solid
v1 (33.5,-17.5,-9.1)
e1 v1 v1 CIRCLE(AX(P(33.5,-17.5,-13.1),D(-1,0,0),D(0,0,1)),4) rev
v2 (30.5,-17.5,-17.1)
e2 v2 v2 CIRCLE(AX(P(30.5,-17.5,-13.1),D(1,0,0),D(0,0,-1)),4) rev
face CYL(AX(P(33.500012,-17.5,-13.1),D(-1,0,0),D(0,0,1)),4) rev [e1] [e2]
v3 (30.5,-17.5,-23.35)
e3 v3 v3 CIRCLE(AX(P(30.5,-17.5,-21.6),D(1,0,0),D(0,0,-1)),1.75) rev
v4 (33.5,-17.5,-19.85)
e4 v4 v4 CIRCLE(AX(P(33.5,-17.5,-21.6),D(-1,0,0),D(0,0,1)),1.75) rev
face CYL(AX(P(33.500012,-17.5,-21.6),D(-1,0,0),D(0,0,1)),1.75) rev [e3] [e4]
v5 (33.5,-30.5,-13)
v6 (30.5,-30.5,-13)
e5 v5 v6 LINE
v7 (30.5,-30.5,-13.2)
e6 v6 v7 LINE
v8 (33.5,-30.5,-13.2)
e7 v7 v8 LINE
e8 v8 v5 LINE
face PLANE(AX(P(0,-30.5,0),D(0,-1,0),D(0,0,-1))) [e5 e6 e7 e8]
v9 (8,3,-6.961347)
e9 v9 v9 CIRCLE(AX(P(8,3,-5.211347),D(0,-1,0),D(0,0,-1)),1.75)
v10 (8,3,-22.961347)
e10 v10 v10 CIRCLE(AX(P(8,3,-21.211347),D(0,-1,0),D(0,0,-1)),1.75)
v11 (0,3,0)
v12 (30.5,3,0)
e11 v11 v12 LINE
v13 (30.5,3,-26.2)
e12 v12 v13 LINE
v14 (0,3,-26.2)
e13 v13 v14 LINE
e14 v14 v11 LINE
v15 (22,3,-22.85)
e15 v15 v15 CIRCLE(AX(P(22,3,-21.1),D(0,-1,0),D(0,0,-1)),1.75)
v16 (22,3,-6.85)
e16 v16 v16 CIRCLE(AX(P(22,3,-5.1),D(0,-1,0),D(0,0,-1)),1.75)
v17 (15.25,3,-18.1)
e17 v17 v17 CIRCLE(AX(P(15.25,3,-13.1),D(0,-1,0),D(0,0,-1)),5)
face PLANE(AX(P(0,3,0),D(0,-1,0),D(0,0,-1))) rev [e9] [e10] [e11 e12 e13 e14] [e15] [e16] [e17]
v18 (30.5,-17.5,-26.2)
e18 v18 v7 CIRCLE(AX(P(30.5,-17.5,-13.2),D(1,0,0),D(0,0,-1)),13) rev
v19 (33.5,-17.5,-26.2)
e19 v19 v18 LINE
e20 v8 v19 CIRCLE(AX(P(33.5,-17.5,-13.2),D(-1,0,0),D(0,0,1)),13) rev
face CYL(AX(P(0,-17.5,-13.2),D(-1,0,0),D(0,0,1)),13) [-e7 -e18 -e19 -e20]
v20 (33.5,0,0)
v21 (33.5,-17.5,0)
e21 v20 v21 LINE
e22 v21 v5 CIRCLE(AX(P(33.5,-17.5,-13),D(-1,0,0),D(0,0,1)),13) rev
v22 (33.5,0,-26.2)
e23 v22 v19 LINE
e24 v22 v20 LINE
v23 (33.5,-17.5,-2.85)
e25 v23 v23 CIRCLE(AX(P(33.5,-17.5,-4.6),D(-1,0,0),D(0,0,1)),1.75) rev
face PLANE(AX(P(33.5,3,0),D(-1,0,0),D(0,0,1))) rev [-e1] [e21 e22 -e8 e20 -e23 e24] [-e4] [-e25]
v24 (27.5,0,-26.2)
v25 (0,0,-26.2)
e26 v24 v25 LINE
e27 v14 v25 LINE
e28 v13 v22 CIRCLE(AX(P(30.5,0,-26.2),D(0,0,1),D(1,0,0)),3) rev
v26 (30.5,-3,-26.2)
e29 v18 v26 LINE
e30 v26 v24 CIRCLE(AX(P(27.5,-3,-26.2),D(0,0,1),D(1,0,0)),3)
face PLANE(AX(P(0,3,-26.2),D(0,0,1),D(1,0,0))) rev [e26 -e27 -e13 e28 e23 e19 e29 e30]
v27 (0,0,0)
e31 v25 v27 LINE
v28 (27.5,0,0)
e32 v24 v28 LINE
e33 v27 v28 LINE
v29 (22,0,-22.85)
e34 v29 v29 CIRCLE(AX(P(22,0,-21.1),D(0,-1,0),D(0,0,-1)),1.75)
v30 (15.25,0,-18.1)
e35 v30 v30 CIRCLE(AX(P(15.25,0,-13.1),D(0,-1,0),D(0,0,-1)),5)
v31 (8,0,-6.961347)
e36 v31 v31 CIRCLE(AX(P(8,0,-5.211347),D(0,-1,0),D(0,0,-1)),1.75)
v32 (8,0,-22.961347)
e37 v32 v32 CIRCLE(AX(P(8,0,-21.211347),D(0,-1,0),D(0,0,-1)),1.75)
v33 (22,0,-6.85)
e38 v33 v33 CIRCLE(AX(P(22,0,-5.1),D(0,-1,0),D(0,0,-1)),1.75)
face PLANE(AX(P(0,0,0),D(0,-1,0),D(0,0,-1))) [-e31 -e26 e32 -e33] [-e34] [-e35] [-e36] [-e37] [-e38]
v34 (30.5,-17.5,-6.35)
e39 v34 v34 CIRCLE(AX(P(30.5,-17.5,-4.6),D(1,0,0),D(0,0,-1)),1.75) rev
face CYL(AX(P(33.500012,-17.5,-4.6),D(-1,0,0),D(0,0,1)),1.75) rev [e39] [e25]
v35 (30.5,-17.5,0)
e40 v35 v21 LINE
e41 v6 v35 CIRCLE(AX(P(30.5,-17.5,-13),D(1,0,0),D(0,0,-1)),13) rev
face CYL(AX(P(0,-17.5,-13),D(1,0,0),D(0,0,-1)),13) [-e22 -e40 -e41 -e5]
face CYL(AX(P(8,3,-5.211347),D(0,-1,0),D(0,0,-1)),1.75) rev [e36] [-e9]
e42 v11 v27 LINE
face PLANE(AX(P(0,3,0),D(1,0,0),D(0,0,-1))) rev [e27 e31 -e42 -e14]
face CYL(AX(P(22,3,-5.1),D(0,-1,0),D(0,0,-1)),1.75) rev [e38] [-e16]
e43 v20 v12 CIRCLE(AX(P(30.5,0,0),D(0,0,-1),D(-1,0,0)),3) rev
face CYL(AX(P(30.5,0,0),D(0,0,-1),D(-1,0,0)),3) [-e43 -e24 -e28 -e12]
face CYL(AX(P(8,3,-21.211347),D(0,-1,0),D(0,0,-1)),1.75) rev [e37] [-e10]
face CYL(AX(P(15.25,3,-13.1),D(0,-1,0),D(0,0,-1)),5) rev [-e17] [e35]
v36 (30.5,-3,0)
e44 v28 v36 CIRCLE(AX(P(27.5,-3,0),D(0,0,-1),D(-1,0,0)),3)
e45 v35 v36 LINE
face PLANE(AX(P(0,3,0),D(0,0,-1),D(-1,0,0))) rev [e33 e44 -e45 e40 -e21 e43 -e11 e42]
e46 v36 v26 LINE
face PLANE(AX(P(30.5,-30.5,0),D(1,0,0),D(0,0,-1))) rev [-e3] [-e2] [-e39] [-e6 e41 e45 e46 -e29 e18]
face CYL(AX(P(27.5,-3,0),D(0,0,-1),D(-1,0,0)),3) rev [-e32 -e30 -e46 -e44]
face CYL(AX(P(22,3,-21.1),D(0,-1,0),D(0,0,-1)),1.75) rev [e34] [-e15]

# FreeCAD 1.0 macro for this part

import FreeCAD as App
import Part
import Sketcher

V = App.Vector


def edges_at(feature, points):
    """Names of the edges that pass closest to the given points."""
    edges = feature.Shape.Edges
    near = lambda p: min(range(len(edges)), key=lambda i: edges[i].distToShape(Part.Vertex(*p))[0])
    return sorted({f"Edge{near(p) + 1}" for p in points})

doc = App.newDocument("Part")
body = doc.addObject("PartDesign::Body", "Body")

# Sketch on XZ plane
sketch1 = doc.addObject("Sketcher::SketchObject", "Sketch")
body.addObject(sketch1)
sketch1.AttachmentSupport = (doc.XZ_Plane, [""])
sketch1.MapMode = "FlatFace"
sketch1.addGeometry([
    Part.LineSegment(V(0, -26.2, 0), V(0, 0, 0)),
    Part.LineSegment(V(0, 0, 0), V(33.5, 0, 0)),
    Part.LineSegment(V(33.5, 0, 0), V(33.5, -26.2, 0)),
    Part.LineSegment(V(33.5, -26.2, 0), V(0, -26.2, 0)),
], False)
sketch1.addConstraint([
    Sketcher.Constraint("Coincident", 0, 2, 1, 1),
    Sketcher.Constraint("Coincident", 1, 2, 2, 1),
    Sketcher.Constraint("Coincident", 2, 2, 3, 1),
    Sketcher.Constraint("Coincident", 3, 2, 0, 1),
    Sketcher.Constraint("Vertical", 0),
    Sketcher.Constraint("Horizontal", 1),
    Sketcher.Constraint("Vertical", 2),
    Sketcher.Constraint("Horizontal", 3),
    Sketcher.Constraint("Coincident", 0, 2, -1, 1),
    Sketcher.Constraint("DistanceX", 1, 1, 1, 2, 33.5),
    Sketcher.Constraint("DistanceY", 0, 1, 0, 2, 26.2),
])
pad1 = doc.addObject("PartDesign::Pad", "Pad")
body.addObject(pad1)
pad1.Profile = sketch1
pad1.Length = 3
pad1.Reversed = True

# Sketch on XZ plane
sketch2 = doc.addObject("Sketcher::SketchObject", "Sketch001")
body.addObject(sketch2)
sketch2.AttachmentSupport = (doc.XZ_Plane, [""])
sketch2.MapMode = "FlatFace"
sketch2.addGeometry([
    Part.LineSegment(V(30.5, 0, 0), V(30.5, -26.2, 0)),
    Part.LineSegment(V(30.5, -26.2, 0), V(33.5, -26.2, 0)),
    Part.LineSegment(V(33.5, -26.2, 0), V(33.5, 0, 0)),
    Part.LineSegment(V(33.5, 0, 0), V(30.5, 0, 0)),
], False)
sketch2.addConstraint([
    Sketcher.Constraint("Coincident", 0, 2, 1, 1),
    Sketcher.Constraint("Coincident", 1, 2, 2, 1),
    Sketcher.Constraint("Coincident", 2, 2, 3, 1),
    Sketcher.Constraint("Coincident", 3, 2, 0, 1),
    Sketcher.Constraint("Vertical", 0),
    Sketcher.Constraint("Horizontal", 1),
    Sketcher.Constraint("Vertical", 2),
    Sketcher.Constraint("Horizontal", 3),
    Sketcher.Constraint("PointOnObject", 2, 2, -1),
    Sketcher.Constraint("DistanceX", 1, 1, 1, 2, 3.0),
    Sketcher.Constraint("DistanceY", 0, 2, 0, 1, 26.2),
    Sketcher.Constraint("DistanceX", -1, 1, 0, 2, 30.5),
])
pad2 = doc.addObject("PartDesign::Pad", "Pad001")
body.addObject(pad2)
pad2.Profile = sketch2
pad2.Length = 30.5
doc.recompute()

fillet = doc.addObject("PartDesign::Fillet", "Fillet")
body.addObject(fillet)
fillet.Base = (pad2, edges_at(pad2, [(32, -30.5, -26.2), (32, -30.5, 0)]))
fillet.Radius = 13

# Sketch on XZ plane
sketch3 = doc.addObject("Sketcher::SketchObject", "Sketch002")
body.addObject(sketch3)
sketch3.AttachmentSupport = (doc.XZ_Plane, [""])
sketch3.MapMode = "FlatFace"
sketch3.addGeometry([
    Part.Circle(V(8, -5.211347, 0), V(0, 0, 1), 1.75),  # 0
    Part.Circle(V(8, -21.211347, 0), V(0, 0, 1), 1.75),  # 1
    Part.Circle(V(22, -21.1, 0), V(0, 0, 1), 1.75),  # 2
    Part.Circle(V(22, -5.1, 0), V(0, 0, 1), 1.75),  # 3
    Part.Circle(V(15.25, -13.1, 0), V(0, 0, 1), 5),  # 4
], False)
sketch3.addConstraint([
    Sketcher.Constraint("Equal", 0, 1),
    Sketcher.Constraint("Equal", 1, 2),
    Sketcher.Constraint("Equal", 2, 3),
    Sketcher.Constraint("Vertical", 0, 3, 1, 3),
    Sketcher.Constraint("Vertical", 2, 3, 3, 3),
    Sketcher.Constraint("Diameter", 4, 10.0),
    Sketcher.Constraint("Diameter", 0, 3.5),
    Sketcher.Constraint("DistanceX", -1, 1, 0, 3, 8.0),
    Sketcher.Constraint("DistanceX", -1, 1, 2, 3, 22.0),
    Sketcher.Constraint("DistanceY", 1, 3, 0, 3, 16.0),
    Sketcher.Constraint("DistanceY", 2, 3, 3, 3, 16.0),
    Sketcher.Constraint("DistanceY", 4, 3, 3, 3, 8.0),
    Sketcher.Constraint("DistanceY", 2, 3, -1, 1, 21.1),
    Sketcher.Constraint("DistanceX", -1, 1, 4, 3, 15.25),
    Sketcher.Constraint("DistanceY", 0, 3, -1, 1, 5.211347),
])
pocket1 = doc.addObject("PartDesign::Pocket", "Pocket")
body.addObject(pocket1)
pocket1.Profile = sketch3
pocket1.Type = "ThroughAll"
doc.recompute()

fillet2 = doc.addObject("PartDesign::Fillet", "Fillet001")
body.addObject(fillet2)
fillet2.Base = (pocket1, edges_at(pocket1, [(33.5, 3, -13.1), (30.5, 0, -13.1)]))
fillet2.Radius = 3

# Sketch on YZ plane
sketch4 = doc.addObject("Sketcher::SketchObject", "Sketch003")
body.addObject(sketch4)
sketch4.AttachmentSupport = (doc.YZ_Plane, [""])
sketch4.MapMode = "FlatFace"
sketch4.AttachmentOffset = App.Placement(V(0, 0, 33.5), App.Rotation())
sketch4.addGeometry([
    Part.Circle(V(-17.5, -4.6, 0), V(0, 0, 1), 1.75),
    Part.Circle(V(-17.5, -21.6, 0), V(0, 0, 1), 1.75),
    Part.Circle(V(-17.5, -13.1, 0), V(0, 0, 1), 4),
], False)
sketch4.addConstraint([
    Sketcher.Constraint("Equal", 0, 1),
    Sketcher.Constraint("Vertical", 0, 3, 1, 3),
    Sketcher.Constraint("Vertical", 1, 3, 2, 3),
    Sketcher.Constraint("Diameter", 2, 8.0),
    Sketcher.Constraint("Diameter", 0, 3.5),
    Sketcher.Constraint("DistanceY", 1, 3, 0, 3, 17.0),
    Sketcher.Constraint("DistanceX", 0, 3, -1, 1, 17.5),
    Sketcher.Constraint("DistanceY", 0, 3, -1, 1, 4.6),
    Sketcher.Constraint("DistanceY", 2, 3, -1, 1, 13.1),
])
pocket2 = doc.addObject("PartDesign::Pocket", "Pocket001")
body.addObject(pocket2)
pocket2.Profile = sketch4
pocket2.Type = "ThroughAll"
pocket2.Midplane = True

doc.recompute()
